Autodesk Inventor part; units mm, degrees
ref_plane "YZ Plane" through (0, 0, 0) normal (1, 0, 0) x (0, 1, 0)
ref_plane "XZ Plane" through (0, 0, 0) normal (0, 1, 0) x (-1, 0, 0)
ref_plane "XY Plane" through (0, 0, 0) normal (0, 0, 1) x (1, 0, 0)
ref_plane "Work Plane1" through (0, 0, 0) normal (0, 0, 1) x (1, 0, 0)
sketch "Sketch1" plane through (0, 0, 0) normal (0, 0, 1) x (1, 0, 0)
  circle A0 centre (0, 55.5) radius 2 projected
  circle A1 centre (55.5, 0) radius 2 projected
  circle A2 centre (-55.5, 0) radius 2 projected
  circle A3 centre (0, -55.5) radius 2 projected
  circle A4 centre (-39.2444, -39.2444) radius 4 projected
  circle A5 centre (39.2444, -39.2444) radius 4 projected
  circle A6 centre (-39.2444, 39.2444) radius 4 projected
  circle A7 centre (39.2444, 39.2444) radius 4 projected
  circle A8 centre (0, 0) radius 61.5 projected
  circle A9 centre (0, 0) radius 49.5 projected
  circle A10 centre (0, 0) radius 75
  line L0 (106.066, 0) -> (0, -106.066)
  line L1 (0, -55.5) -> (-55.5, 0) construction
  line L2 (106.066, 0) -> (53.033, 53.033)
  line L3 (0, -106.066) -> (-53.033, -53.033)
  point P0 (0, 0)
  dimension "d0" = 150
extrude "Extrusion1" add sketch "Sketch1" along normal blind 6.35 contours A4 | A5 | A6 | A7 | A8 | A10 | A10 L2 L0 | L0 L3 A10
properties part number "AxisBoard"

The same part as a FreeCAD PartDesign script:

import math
import FreeCAD as App
import Part
import Sketcher

V = App.Vector
Q = App.Units.Quantity

doc = App.newDocument("Part")
body = doc.addObject("PartDesign::Body", "Body")

sketch1 = body.newObject("Sketcher::SketchObject", "Sketch")
sketch1.AttachmentSupport = (doc.getObject("XY_Plane"), [""])
sketch1.MapMode = "FlatFace"
sketch1.addGeometry([
    Part.ArcOfCircle(Part.Circle(V(0, 0, 0), V(0, 0, 1), 75), math.radians(45), math.radians(225)),
    Part.LineSegment(V(-53, -53, 0), V(0, -106.1, 0)),
    Part.LineSegment(V(0, -106.1, 0), V(106.1, 0, 0)),
    Part.LineSegment(V(106.1, 0, 0), V(53, 53, 0)),
    Part.Circle(V(0, -55.5, 0), V(0, 0, 1), 2),
    Part.Circle(V(-55.5, 0, 0), V(0, 0, 1), 2),
    Part.Circle(V(0, 0, 0), V(0, 0, 1), 49.5),
    Part.Circle(V(0, 55.5, 0), V(0, 0, 1), 2),
    Part.Circle(V(55.5, 0, 0), V(0, 0, 1), 2),
], False)
sketch1.addConstraint([
    Sketcher.Constraint("Tangent", 0, 2, 1, 1),
    Sketcher.Constraint("Coincident", 1, 2, 2, 1),
    Sketcher.Constraint("Coincident", 2, 2, 3, 1),
    Sketcher.Constraint("Tangent", 3, 2, 0, 1),
    Sketcher.Constraint("Coincident", 0, 3, -1, 1),
    Sketcher.Constraint("Coincident", 6, 3, -1, 1),
    Sketcher.Constraint("Equal", 4, 5),
    Sketcher.Constraint("Equal", 5, 7),
    Sketcher.Constraint("Equal", 7, 8),
    Sketcher.Constraint("Symmetric", 4, 3, 7, 3, -1, 1),
    Sketcher.Constraint("Symmetric", 5, 3, 8, 3, -1, 1),
    Sketcher.Constraint("PointOnObject", 4, 3, -2),
    Sketcher.Constraint("PointOnObject", 5, 3, -1),
    Sketcher.Constraint("PointOnObject", 1, 2, -2),
    Sketcher.Constraint("PointOnObject", 2, 2, -1),
    Sketcher.Constraint("Perpendicular", 1, 2),
    Sketcher.Constraint("Perpendicular", 2, 3),
    Sketcher.Constraint("Radius", 0, Q("75 mm")),
    Sketcher.Constraint("Diameter", 4, Q("4 mm")),
    Sketcher.Constraint("Diameter", 6, Q("99 mm")),
    Sketcher.Constraint("DistanceY", 4, 3, 7, 3, Q("111 mm")),
    Sketcher.Constraint("DistanceX", 5, 3, 8, 3, Q("111 mm")),
])
pad1 = body.newObject("PartDesign::Pad", "Pad")
pad1.Profile = sketch1
pad1.Length = 6.35

doc.recompute()
